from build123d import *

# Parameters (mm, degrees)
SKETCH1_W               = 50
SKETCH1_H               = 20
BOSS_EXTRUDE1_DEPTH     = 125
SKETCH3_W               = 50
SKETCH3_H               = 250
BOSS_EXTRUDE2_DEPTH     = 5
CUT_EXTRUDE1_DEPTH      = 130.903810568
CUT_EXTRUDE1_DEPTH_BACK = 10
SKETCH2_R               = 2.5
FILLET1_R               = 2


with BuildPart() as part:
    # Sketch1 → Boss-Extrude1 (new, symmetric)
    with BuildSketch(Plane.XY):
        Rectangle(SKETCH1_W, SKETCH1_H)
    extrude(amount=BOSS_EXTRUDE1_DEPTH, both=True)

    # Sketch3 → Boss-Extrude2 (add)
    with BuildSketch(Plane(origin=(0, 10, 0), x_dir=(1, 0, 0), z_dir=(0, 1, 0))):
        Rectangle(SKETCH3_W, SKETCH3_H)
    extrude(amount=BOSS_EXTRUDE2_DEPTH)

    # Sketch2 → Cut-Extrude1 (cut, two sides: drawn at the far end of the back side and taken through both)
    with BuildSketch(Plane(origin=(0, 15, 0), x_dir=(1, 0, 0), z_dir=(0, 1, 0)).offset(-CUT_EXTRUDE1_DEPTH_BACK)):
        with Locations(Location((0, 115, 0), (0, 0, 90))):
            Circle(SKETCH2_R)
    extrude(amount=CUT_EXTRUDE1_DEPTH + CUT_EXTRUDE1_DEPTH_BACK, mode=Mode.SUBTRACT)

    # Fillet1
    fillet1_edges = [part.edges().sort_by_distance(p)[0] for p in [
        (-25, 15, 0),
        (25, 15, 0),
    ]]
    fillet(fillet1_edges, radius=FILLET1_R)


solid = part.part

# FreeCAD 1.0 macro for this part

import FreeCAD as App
import Part
import Sketcher
Q = App.Units.Quantity


def edges_at(feature, points):
    """Names of the edges that pass closest to the given points."""
    edges = feature.Shape.Edges
    near = lambda p: min(range(len(edges)), key=lambda i: edges[i].distToShape(Part.Vertex(*p))[0])
    return sorted({f"Edge{near(p) + 1}" for p in points})


def add_polygon(sketch, points):
    """Adds a closed chain of lines whose ends are joined by coincident constraints."""
    first, n = sketch.GeometryCount, len(points)
    for a, b in zip(points, points[1:] + points[:1]):
        sketch.addGeometry(Part.LineSegment(App.Vector(*a, 0), App.Vector(*b, 0)), False)
    for i in range(n):
        sketch.addConstraint(Sketcher.Constraint("Coincident", first + i, 2, first + (i + 1) % n, 1))

doc = App.newDocument("Part")
body = doc.addObject("PartDesign::Body", "Body")

# Sketch on XY plane
sketch1 = doc.addObject("Sketcher::SketchObject", "Sketch")
body.addObject(sketch1)
sketch1.AttachmentSupport = (doc.XY_Plane, [""])
sketch1.MapMode = "FlatFace"
add_polygon(sketch1, [(-25, 10), (-25, -10), (25, -10), (25, 10)])  # lines 0-3
sketch1.addConstraint(Sketcher.Constraint("Vertical", 0))
sketch1.addConstraint(Sketcher.Constraint("Horizontal", 1))
sketch1.addConstraint(Sketcher.Constraint("Vertical", 2))
sketch1.addConstraint(Sketcher.Constraint("Horizontal", 3))
sketch1.addConstraint(Sketcher.Constraint("Symmetric", 0, 2, 2, 2, -1, 1))
sketch1.addConstraint(Sketcher.Constraint("DistanceX", 1, 1, 1, 2, Q("50 mm")))
sketch1.addConstraint(Sketcher.Constraint("DistanceY", 0, 2, 0, 1, Q("20 mm")))
pad1 = doc.addObject("PartDesign::Pad", "Pad")
body.addObject(pad1)
pad1.Profile = sketch1
pad1.Length = 250
pad1.Midplane = True

# Sketch on XZ plane
sketch2 = doc.addObject("Sketcher::SketchObject", "Sketch001")
body.addObject(sketch2)
sketch2.AttachmentSupport = (doc.XZ_Plane, [""])
sketch2.MapMode = "FlatFace"
sketch2.AttachmentOffset = App.Placement(App.Vector(0, 0, -10), App.Rotation())
add_polygon(sketch2, [(-25, -125), (-25, 125), (25, 125), (25, -125)])  # lines 0-3
sketch2.addConstraint(Sketcher.Constraint("Vertical", 0))
sketch2.addConstraint(Sketcher.Constraint("Horizontal", 1))
sketch2.addConstraint(Sketcher.Constraint("Vertical", 2))
sketch2.addConstraint(Sketcher.Constraint("Horizontal", 3))
sketch2.addConstraint(Sketcher.Constraint("Symmetric", 0, 2, 2, 2, -1, 1))
sketch2.addConstraint(Sketcher.Constraint("DistanceX", 1, 1, 1, 2, Q("50 mm")))
sketch2.addConstraint(Sketcher.Constraint("DistanceY", 0, 1, 0, 2, Q("250 mm")))
pad2 = doc.addObject("PartDesign::Pad", "Pad001")
body.addObject(pad2)
pad2.Profile = sketch2
pad2.Length = 5
pad2.Reversed = True

# Sketch on XZ plane
sketch3 = doc.addObject("Sketcher::SketchObject", "Sketch002")
body.addObject(sketch3)
sketch3.AttachmentSupport = (doc.XZ_Plane, [""])
sketch3.MapMode = "FlatFace"
sketch3.AttachmentOffset = App.Placement(App.Vector(0, 0, -15), App.Rotation())
sketch3.addGeometry(Part.Circle(App.Vector(0, -115, 0), App.Vector(0, 0, 1), 2.5), False)
sketch3.addConstraint(Sketcher.Constraint("PointOnObject", 0, 3, -2))
sketch3.addConstraint(Sketcher.Constraint("Diameter", 0, Q("5 mm")))
sketch3.addConstraint(Sketcher.Constraint("DistanceY", 0, 3, -1, 1, Q("115 mm")))
pocket1 = doc.addObject("PartDesign::Pocket", "Pocket")
body.addObject(pocket1)
pocket1.Profile = sketch3
pocket1.Type = "TwoLengths"
pocket1.Length = 130.903811
pocket1.Length2 = 10
doc.recompute()

fillet = doc.addObject("PartDesign::Fillet", "Fillet")
body.addObject(fillet)
fillet.Base = (pocket1, edges_at(pocket1, [(-25, 15, 0), (25, 15, 0)]))
fillet.Radius = 2

doc.recompute()
